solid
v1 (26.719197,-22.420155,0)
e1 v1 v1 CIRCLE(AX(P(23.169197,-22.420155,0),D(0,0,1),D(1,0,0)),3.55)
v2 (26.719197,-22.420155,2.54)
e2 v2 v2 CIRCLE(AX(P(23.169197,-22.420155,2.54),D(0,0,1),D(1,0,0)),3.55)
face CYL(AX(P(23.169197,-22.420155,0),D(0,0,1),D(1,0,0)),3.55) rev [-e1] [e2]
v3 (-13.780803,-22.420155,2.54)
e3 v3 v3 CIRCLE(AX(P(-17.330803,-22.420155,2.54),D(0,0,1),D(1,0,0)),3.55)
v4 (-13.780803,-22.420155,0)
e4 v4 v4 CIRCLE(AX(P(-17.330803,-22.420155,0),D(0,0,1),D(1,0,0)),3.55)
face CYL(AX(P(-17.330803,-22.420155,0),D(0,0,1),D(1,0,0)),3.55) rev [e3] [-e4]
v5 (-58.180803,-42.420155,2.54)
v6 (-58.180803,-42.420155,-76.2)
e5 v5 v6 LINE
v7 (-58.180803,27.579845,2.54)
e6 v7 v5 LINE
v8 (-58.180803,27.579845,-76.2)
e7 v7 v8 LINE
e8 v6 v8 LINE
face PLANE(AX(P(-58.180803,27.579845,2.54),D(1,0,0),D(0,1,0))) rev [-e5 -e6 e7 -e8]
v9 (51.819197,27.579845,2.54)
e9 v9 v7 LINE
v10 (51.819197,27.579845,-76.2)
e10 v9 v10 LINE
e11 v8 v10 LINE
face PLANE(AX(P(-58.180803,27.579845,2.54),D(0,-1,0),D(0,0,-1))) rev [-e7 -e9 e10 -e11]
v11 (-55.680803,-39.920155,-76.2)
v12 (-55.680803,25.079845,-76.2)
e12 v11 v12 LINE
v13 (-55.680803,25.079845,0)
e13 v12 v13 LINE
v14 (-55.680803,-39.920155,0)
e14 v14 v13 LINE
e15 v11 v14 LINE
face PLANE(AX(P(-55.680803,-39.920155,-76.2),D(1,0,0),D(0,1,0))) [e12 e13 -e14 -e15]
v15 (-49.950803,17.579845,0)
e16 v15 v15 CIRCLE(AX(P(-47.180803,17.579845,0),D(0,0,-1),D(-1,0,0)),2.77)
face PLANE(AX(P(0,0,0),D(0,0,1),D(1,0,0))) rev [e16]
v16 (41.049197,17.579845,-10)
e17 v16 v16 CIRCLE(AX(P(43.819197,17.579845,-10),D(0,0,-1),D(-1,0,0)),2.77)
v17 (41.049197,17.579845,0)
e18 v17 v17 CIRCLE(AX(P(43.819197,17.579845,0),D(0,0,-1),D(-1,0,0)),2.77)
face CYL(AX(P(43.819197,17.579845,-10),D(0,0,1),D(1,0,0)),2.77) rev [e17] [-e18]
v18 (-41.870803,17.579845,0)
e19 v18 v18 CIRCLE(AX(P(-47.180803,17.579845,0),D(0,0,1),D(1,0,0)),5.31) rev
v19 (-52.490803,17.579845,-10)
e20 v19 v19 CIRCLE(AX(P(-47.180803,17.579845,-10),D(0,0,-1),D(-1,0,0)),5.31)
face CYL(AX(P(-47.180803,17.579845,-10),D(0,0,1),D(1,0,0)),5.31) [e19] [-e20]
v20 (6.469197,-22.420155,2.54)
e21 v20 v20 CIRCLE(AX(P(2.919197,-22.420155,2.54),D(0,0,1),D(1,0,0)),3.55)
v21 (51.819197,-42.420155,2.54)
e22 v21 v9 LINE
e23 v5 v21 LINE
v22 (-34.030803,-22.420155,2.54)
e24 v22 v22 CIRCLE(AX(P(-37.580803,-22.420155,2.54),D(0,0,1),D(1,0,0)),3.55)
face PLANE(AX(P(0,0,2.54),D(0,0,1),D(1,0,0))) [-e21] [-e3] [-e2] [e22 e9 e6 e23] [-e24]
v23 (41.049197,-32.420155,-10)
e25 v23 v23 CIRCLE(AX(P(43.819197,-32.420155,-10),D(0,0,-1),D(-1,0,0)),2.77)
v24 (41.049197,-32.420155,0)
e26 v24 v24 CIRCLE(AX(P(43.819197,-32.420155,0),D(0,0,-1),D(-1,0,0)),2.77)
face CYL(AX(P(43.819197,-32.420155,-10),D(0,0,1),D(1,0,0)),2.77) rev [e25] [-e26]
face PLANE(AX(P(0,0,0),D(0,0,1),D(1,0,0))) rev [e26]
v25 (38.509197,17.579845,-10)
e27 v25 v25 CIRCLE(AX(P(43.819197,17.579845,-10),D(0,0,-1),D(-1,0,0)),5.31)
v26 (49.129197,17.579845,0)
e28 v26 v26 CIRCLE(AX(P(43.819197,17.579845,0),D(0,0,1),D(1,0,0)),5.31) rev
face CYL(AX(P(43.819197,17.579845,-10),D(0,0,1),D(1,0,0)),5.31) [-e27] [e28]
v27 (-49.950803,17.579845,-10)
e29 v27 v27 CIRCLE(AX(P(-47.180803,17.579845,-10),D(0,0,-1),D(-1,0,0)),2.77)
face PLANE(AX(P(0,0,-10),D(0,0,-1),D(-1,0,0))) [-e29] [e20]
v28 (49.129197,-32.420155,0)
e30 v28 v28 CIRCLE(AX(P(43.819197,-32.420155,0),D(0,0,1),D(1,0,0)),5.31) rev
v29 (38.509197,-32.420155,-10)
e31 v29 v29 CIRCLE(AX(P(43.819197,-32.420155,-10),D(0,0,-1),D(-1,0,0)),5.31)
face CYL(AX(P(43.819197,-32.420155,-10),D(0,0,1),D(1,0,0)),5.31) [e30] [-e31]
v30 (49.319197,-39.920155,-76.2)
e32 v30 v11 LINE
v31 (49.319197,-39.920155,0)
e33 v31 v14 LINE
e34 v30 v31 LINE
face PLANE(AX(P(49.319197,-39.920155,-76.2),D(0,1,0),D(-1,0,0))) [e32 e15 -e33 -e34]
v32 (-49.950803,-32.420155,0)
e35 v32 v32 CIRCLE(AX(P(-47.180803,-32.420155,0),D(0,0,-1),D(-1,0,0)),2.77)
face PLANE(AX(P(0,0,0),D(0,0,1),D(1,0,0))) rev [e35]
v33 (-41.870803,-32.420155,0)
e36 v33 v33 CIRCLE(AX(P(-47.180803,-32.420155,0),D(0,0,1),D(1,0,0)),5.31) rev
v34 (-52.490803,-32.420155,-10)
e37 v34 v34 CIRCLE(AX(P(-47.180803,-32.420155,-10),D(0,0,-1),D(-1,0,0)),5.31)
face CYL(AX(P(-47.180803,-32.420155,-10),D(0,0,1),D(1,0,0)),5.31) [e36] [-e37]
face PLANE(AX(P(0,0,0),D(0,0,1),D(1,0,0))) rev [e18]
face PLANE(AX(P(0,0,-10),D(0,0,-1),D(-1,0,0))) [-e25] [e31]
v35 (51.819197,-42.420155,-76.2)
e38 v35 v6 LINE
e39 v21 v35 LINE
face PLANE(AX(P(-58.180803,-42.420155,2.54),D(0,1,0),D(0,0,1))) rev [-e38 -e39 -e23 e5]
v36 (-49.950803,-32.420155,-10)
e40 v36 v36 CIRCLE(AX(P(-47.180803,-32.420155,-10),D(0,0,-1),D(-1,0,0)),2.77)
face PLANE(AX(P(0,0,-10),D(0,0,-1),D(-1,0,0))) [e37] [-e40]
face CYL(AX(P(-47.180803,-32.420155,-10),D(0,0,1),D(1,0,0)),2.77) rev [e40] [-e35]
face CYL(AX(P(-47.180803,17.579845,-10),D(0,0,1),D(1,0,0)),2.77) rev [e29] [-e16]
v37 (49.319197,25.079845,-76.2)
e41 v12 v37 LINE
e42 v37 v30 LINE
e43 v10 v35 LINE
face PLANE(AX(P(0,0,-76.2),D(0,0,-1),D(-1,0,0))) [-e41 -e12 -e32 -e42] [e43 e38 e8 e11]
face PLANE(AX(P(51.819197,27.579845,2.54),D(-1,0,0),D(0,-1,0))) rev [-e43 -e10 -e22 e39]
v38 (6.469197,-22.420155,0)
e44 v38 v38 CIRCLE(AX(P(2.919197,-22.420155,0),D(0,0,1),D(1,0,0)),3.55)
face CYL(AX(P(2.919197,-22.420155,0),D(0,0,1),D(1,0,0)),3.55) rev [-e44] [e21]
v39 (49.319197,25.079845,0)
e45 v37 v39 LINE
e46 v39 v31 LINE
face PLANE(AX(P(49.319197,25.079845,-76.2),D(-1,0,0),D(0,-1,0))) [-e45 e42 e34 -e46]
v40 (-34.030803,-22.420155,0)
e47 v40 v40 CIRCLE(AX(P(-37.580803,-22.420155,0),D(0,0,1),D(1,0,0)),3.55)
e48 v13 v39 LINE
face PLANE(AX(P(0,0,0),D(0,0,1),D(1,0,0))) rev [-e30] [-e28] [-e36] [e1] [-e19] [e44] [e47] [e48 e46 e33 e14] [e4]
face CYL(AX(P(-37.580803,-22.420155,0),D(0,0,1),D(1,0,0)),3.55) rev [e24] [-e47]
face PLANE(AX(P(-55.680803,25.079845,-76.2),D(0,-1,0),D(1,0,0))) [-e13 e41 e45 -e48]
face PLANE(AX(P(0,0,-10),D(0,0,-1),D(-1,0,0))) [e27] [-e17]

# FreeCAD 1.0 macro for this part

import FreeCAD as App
import Part
import Sketcher

V = App.Vector
Q = App.Units.Quantity

doc = App.newDocument("Part")
body = doc.addObject("PartDesign::Body", "Body")

# Sketch on XY plane
sketch1 = body.newObject("Sketcher::SketchObject", "Sketch")
sketch1.AttachmentSupport = (doc.getObject("XY_Plane"), [""])
sketch1.MapMode = "FlatFace"
sketch1.addGeometry([
    Part.LineSegment(V(-58.180803, 27.579845, 0), V(-58.180803, -42.420155, 0)),
    Part.LineSegment(V(-58.180803, -42.420155, 0), V(51.819197, -42.420155, 0)),
    Part.LineSegment(V(51.819197, -42.420155, 0), V(51.819197, 27.579845, 0)),
    Part.LineSegment(V(51.819197, 27.579845, 0), V(-58.180803, 27.579845, 0)),
], False)
sketch1.addConstraint([
    Sketcher.Constraint("Coincident", 0, 2, 1, 1),
    Sketcher.Constraint("Coincident", 1, 2, 2, 1),
    Sketcher.Constraint("Coincident", 2, 2, 3, 1),
    Sketcher.Constraint("Coincident", 3, 2, 0, 1),
    Sketcher.Constraint("Vertical", 0),
    Sketcher.Constraint("Horizontal", 1),
    Sketcher.Constraint("Vertical", 2),
    Sketcher.Constraint("Horizontal", 3),
    Sketcher.Constraint("DistanceX", 1, 1, 1, 2, Q("110 mm")),
    Sketcher.Constraint("DistanceY", 0, 2, 0, 1, Q("70 mm")),
    Sketcher.Constraint("DistanceX", 0, 2, -1, 1, Q("58.180803 mm")),
    Sketcher.Constraint("DistanceY", 0, 2, -1, 1, Q("42.420155 mm")),
])
pad1 = body.newObject("PartDesign::Pad", "Pad")
pad1.Profile = sketch1
pad1.Length = 2.54

# Sketch on XY plane
sketch2 = body.newObject("Sketcher::SketchObject", "Sketch001")
sketch2.AttachmentSupport = (doc.getObject("XY_Plane"), [""])
sketch2.MapMode = "FlatFace"
sketch2.addGeometry([
    Part.LineSegment(V(51.819197, 27.579845, 0), V(51.819197, -42.420155, 0)),  # 0
    Part.LineSegment(V(51.819197, -42.420155, 0), V(-58.180803, -42.420155, 0)),  # 1
    Part.LineSegment(V(-58.180803, -42.420155, 0), V(-58.180803, 27.579845, 0)),  # 2
    Part.LineSegment(V(-58.180803, 27.579845, 0), V(51.819197, 27.579845, 0)),  # 3
    Part.LineSegment(V(-55.680803, -39.920155, 0), V(49.319197, -39.920155, 0)),  # 4
    Part.LineSegment(V(49.319197, -39.920155, 0), V(49.319197, 25.079845, 0)),  # 5
    Part.LineSegment(V(49.319197, 25.079845, 0), V(-55.680803, 25.079845, 0)),  # 6
    Part.LineSegment(V(-55.680803, 25.079845, 0), V(-55.680803, -39.920155, 0)),  # 7
], False)
sketch2.addConstraint([
    Sketcher.Constraint("Coincident", 0, 2, 1, 1),
    Sketcher.Constraint("Coincident", 1, 2, 2, 1),
    Sketcher.Constraint("Coincident", 2, 2, 3, 1),
    Sketcher.Constraint("Coincident", 3, 2, 0, 1),
    Sketcher.Constraint("Coincident", 4, 2, 5, 1),
    Sketcher.Constraint("Coincident", 5, 2, 6, 1),
    Sketcher.Constraint("Coincident", 6, 2, 7, 1),
    Sketcher.Constraint("Coincident", 7, 2, 4, 1),
    Sketcher.Constraint("Vertical", 0),
    Sketcher.Constraint("Horizontal", 1),
    Sketcher.Constraint("Vertical", 2),
    Sketcher.Constraint("Horizontal", 3),
    Sketcher.Constraint("Horizontal", 4),
    Sketcher.Constraint("Vertical", 5),
    Sketcher.Constraint("Horizontal", 6),
    Sketcher.Constraint("Vertical", 7),
    Sketcher.Constraint("DistanceX", 1, 2, 1, 1, Q("110 mm")),
    Sketcher.Constraint("DistanceX", 4, 1, 4, 2, Q("105 mm")),
    Sketcher.Constraint("DistanceY", 0, 2, 0, 1, Q("70 mm")),
    Sketcher.Constraint("DistanceY", 5, 1, 5, 2, Q("65 mm")),
    Sketcher.Constraint("DistanceX", 4, 2, 0, 2, Q("2.5 mm")),
    Sketcher.Constraint("DistanceY", 0, 2, 4, 2, Q("2.5 mm")),
    Sketcher.Constraint("DistanceX", -1, 1, 0, 2, Q("51.819197 mm")),
    Sketcher.Constraint("DistanceY", 0, 2, -1, 1, Q("42.420155 mm")),
])
pad2 = body.newObject("PartDesign::Pad", "Pad001")
pad2.Profile = sketch2
pad2.Length = 76.2
pad2.Reversed = True

# Sketch on XY plane
sketch3 = body.newObject("Sketcher::SketchObject", "Sketch002")
sketch3.AttachmentSupport = (doc.getObject("XY_Plane"), [""])
sketch3.MapMode = "FlatFace"
sketch3.addGeometry([
    Part.Circle(V(43.819197, 17.579845, 0), V(0, 0, 1), 5.31),  # 0
    Part.Circle(V(43.819197, 17.579845, 0), V(0, 0, 1), 2.77),  # 1
    Part.Circle(V(-47.180803, 17.579845, 0), V(0, 0, 1), 5.31),  # 2
    Part.Circle(V(-47.180803, 17.579845, 0), V(0, 0, 1), 2.77),  # 3
    Part.Circle(V(-47.180803, -32.420155, 0), V(0, 0, 1), 5.31),  # 4
    Part.Circle(V(-47.180803, -32.420155, 0), V(0, 0, 1), 2.77),  # 5
    Part.Circle(V(43.819197, -32.420155, 0), V(0, 0, 1), 5.31),  # 6
    Part.Circle(V(43.819197, -32.420155, 0), V(0, 0, 1), 2.77),  # 7
], False)
sketch3.addConstraint([
    Sketcher.Constraint("Coincident", 1, 3, 0, 3),
    Sketcher.Constraint("Coincident", 3, 3, 2, 3),
    Sketcher.Constraint("Coincident", 5, 3, 4, 3),
    Sketcher.Constraint("Coincident", 7, 3, 6, 3),
    Sketcher.Constraint("Equal", 0, 2),
    Sketcher.Constraint("Equal", 1, 3),
    Sketcher.Constraint("Equal", 2, 4),
    Sketcher.Constraint("Equal", 3, 5),
    Sketcher.Constraint("Equal", 4, 6),
    Sketcher.Constraint("Equal", 5, 7),
    Sketcher.Constraint("Horizontal", 1, 3, 2, 3),
    Sketcher.Constraint("Horizontal", 5, 3, 6, 3),
    Sketcher.Constraint("Vertical", 3, 3, 4, 3),
    Sketcher.Constraint("Vertical", 1, 3, 6, 3),
    Sketcher.Constraint("Diameter", 0, Q("10.62 mm")),
    Sketcher.Constraint("Diameter", 1, Q("5.54 mm")),
    Sketcher.Constraint("DistanceX", 2, 3, 0, 3, Q("91 mm")),
    Sketcher.Constraint("DistanceY", 4, 3, 2, 3, Q("50 mm")),
    Sketcher.Constraint("DistanceX", -1, 1, 0, 3, Q("43.819197 mm")),
    Sketcher.Constraint("DistanceY", -1, 1, 0, 3, Q("17.579845 mm")),
])
pad3 = body.newObject("PartDesign::Pad", "Pad002")
pad3.Profile = sketch3
pad3.Length = 10
pad3.Reversed = True

# Sketch on XY plane
sketch4 = body.newObject("Sketcher::SketchObject", "Sketch003")
sketch4.AttachmentSupport = (doc.getObject("XY_Plane"), [""])
sketch4.MapMode = "FlatFace"
sketch4.AttachmentOffset = App.Placement(V(0, 0, 2.54), App.Rotation())
sketch4.addGeometry([
    Part.Circle(V(23.169197, -22.420155, 0), V(0, 0, 1), 3.55),
    Part.Circle(V(2.919197, -22.420155, 0), V(0, 0, 1), 3.55),
    Part.Circle(V(-17.330803, -22.420155, 0), V(0, 0, 1), 3.55),
    Part.Circle(V(-37.580803, -22.420155, 0), V(0, 0, 1), 3.55),
], False)
sketch4.addConstraint([
    Sketcher.Constraint("Equal", 0, 1),
    Sketcher.Constraint("Equal", 1, 2),
    Sketcher.Constraint("Equal", 2, 3),
    Sketcher.Constraint("Horizontal", 0, 3, 1, 3),
    Sketcher.Constraint("Horizontal", 1, 3, 2, 3),
    Sketcher.Constraint("Horizontal", 2, 3, 3, 3),
    Sketcher.Constraint("Diameter", 0, Q("7.1 mm")),
    Sketcher.Constraint("DistanceX", 2, 3, 0, 3, Q("40.5 mm")),
    Sketcher.Constraint("DistanceX", 3, 3, 1, 3, Q("40.5 mm")),
    Sketcher.Constraint("DistanceX", 1, 3, 0, 3, Q("20.25 mm")),
    Sketcher.Constraint("DistanceX", -1, 1, 0, 3, Q("23.169197 mm")),
    Sketcher.Constraint("DistanceY", 0, 3, -1, 1, Q("22.420155 mm")),
])
pocket1 = body.newObject("PartDesign::Pocket", "Pocket")
pocket1.Profile = sketch4
pocket1.Length = 2.54

doc.recompute()
